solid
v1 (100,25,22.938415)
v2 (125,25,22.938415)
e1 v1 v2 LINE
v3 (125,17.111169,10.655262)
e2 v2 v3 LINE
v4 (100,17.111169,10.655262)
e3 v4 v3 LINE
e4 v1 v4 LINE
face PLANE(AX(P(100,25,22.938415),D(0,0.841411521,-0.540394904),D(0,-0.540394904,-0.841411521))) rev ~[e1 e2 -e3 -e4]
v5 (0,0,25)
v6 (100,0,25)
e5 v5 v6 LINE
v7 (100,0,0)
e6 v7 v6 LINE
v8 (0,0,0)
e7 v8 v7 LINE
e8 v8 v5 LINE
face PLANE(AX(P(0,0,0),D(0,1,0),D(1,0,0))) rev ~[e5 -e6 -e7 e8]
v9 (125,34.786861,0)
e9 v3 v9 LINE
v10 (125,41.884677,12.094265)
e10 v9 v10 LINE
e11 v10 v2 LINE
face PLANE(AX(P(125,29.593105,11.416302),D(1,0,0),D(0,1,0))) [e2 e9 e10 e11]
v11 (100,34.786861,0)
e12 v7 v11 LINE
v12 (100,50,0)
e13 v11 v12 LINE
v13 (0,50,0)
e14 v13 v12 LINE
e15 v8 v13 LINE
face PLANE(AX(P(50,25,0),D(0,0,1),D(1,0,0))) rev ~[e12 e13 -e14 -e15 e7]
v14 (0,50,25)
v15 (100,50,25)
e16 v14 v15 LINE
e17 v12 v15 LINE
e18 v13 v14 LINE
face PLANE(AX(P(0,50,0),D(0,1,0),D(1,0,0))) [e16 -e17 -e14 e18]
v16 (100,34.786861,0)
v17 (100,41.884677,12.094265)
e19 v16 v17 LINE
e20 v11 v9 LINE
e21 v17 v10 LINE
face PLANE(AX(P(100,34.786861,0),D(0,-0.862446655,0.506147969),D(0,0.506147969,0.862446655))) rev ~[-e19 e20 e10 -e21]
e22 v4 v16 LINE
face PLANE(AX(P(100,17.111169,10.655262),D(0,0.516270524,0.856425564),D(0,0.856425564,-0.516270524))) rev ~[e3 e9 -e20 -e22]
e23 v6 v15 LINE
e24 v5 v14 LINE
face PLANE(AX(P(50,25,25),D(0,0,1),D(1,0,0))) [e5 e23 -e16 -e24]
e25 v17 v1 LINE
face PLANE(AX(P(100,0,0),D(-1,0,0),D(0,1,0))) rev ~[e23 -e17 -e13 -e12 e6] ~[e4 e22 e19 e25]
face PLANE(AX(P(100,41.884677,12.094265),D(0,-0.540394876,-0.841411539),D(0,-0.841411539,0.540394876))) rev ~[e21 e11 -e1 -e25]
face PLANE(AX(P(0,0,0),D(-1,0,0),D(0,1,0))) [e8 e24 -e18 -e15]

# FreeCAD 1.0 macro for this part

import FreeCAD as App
import Part
import Sketcher

doc = App.newDocument("Part")
body = doc.addObject("PartDesign::Body", "Body")

sketch1 = body.newObject("Sketcher::SketchObject", "Sketch")
sketch1.AttachmentSupport = (doc.getObject("XY_Plane"), [""])
sketch1.MapMode = "FlatFace"
sketch1.addGeometry([
    Part.LineSegment(App.Vector(0, 50, 0), App.Vector(0, 0, 0)),
    Part.LineSegment(App.Vector(0, 0, 0), App.Vector(100, 0, 0)),
    Part.LineSegment(App.Vector(100, 0, 0), App.Vector(100, 50, 0)),
    Part.LineSegment(App.Vector(100, 50, 0), App.Vector(0, 50, 0)),
], False)
sketch1.addConstraint([
    Sketcher.Constraint("Coincident", 0, 2, 1, 1),
    Sketcher.Constraint("Coincident", 1, 2, 2, 1),
    Sketcher.Constraint("Coincident", 2, 2, 3, 1),
    Sketcher.Constraint("Coincident", 3, 2, 0, 1),
    Sketcher.Constraint("Vertical", 0),
    Sketcher.Constraint("Horizontal", 1),
    Sketcher.Constraint("Vertical", 2),
    Sketcher.Constraint("Horizontal", 3),
    Sketcher.Constraint("Coincident", 0, 2, -1, 1),
    Sketcher.Constraint("DistanceX", 1, 1, 1, 2, 100.0),
    Sketcher.Constraint("DistanceY", 0, 2, 0, 1, 50.0),
])
pad1 = body.newObject("PartDesign::Pad", "Pad")
pad1.Profile = sketch1
pad1.Length = 25

sketch2 = body.newObject("Sketcher::SketchObject", "Sketch001")
sketch2.AttachmentSupport = (doc.getObject("YZ_Plane"), [""])
sketch2.MapMode = "FlatFace"
sketch2.AttachmentOffset = App.Placement(App.Vector(0, 0, 100), App.Rotation())
sketch2.addGeometry([
    Part.LineSegment(App.Vector(25, 23, 0), App.Vector(17, 11, 0)),
    Part.LineSegment(App.Vector(17, 11, 0), App.Vector(35, 0, 0)),
    Part.LineSegment(App.Vector(35, 0, 0), App.Vector(42, 12, 0)),
    Part.LineSegment(App.Vector(42, 12, 0), App.Vector(25, 23, 0)),
], False)
sketch2.addConstraint([
    Sketcher.Constraint("Coincident", 0, 2, 1, 1),
    Sketcher.Constraint("Coincident", 1, 2, 2, 1),
    Sketcher.Constraint("Coincident", 2, 2, 3, 1),
    Sketcher.Constraint("Coincident", 3, 2, 0, 1),
    Sketcher.Constraint("PointOnObject", 1, 2, -1),
    Sketcher.Constraint("Perpendicular", 0, 3),
    Sketcher.Constraint("DistanceX", -1, 1, 3, 2, 25.0),
    Sketcher.Constraint("Distance", 0, 14.598271),
    Sketcher.Constraint("DistanceX", -1, 1, 0, 2, 17.111169),
    Sketcher.Constraint("DistanceX", -1, 1, 1, 2, 34.786861),
    Sketcher.Constraint("DistanceX", 0, 2, 2, 2, 24.773508),
    Sketcher.Constraint("Distance", 1, 20.638912),
])
pad2 = body.newObject("PartDesign::Pad", "Pad001")
pad2.Profile = sketch2
pad2.Length = 25

doc.recompute()
